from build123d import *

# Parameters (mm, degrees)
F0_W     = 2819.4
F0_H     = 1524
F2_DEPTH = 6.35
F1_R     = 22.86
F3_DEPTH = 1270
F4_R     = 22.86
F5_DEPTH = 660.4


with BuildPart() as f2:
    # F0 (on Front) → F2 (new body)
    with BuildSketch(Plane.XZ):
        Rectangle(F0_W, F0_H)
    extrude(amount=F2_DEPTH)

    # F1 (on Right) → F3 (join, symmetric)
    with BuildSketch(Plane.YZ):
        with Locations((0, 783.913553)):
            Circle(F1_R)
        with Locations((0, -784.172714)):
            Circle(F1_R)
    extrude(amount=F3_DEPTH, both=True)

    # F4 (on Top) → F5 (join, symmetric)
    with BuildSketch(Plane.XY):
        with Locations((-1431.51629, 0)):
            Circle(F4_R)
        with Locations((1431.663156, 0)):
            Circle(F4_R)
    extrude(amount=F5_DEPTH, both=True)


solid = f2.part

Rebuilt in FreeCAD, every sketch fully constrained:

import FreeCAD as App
import Part
import Sketcher
from FreeCAD import Vector
Q = App.Units.Quantity


def add_polygon(sketch, points):
    """Adds a closed chain of lines whose ends are joined by coincident constraints."""
    first, n = sketch.GeometryCount, len(points)
    for a, b in zip(points, points[1:] + points[:1]):
        sketch.addGeometry(Part.LineSegment(App.Vector(*a, 0), App.Vector(*b, 0)), False)
    for i in range(n):
        sketch.addConstraint(Sketcher.Constraint("Coincident", first + i, 2, first + (i + 1) % n, 1))

doc = App.newDocument("Part")
body = doc.addObject("PartDesign::Body", "Body")

# Sketch on XZ plane
sketch1 = body.newObject("Sketcher::SketchObject", "Sketch")
sketch1.AttachmentSupport = (doc.getObject("XZ_Plane"), [""])
sketch1.MapMode = "FlatFace"
add_polygon(sketch1, [(-1409.7, 762), (-1409.7, -762), (1409.7, -762), (1409.7, 762)])  # lines 0-3
sketch1.addConstraint([
    Sketcher.Constraint("Vertical", 0),
    Sketcher.Constraint("Horizontal", 1),
    Sketcher.Constraint("Vertical", 2),
    Sketcher.Constraint("Horizontal", 3),
    Sketcher.Constraint("Symmetric", 0, 2, 2, 2, -1, 1),
    Sketcher.Constraint("DistanceX", 1, 1, 1, 2, Q("111 in")),
    Sketcher.Constraint("DistanceY", 0, 2, 0, 1, Q("60 in")),
])
pad1 = body.newObject("PartDesign::Pad", "Pad")
pad1.Profile = sketch1
pad1.Length = Q("0.25 in")

# Sketch on YZ plane
sketch2 = body.newObject("Sketcher::SketchObject", "Sketch001")
sketch2.AttachmentSupport = (doc.getObject("YZ_Plane"), [""])
sketch2.MapMode = "FlatFace"
sketch2.addGeometry([
    Part.Circle(Vector(0, 783.913553, 0), Vector(0, 0, 1), 22.86),
    Part.Circle(Vector(0, -784.172714, 0), Vector(0, 0, 1), 22.86),
], False)
sketch2.addConstraint([
    Sketcher.Constraint("Equal", 0, 1),
    Sketcher.Constraint("PointOnObject", 0, 3, -2),
    Sketcher.Constraint("PointOnObject", 1, 3, -2),
    Sketcher.Constraint("Diameter", 0, Q("1.8 in")),
    Sketcher.Constraint("DistanceY", -1, 1, 0, 3, Q("783.913553 mm")),
    Sketcher.Constraint("DistanceY", 1, 3, -1, 1, Q("784.172714 mm")),
])
pad2 = body.newObject("PartDesign::Pad", "Pad001")
pad2.Profile = sketch2
pad2.Length = Q("100 in")
pad2.Midplane = True

# Sketch on XY plane
sketch3 = body.newObject("Sketcher::SketchObject", "Sketch002")
sketch3.AttachmentSupport = (doc.getObject("XY_Plane"), [""])
sketch3.MapMode = "FlatFace"
sketch3.addGeometry([
    Part.Circle(Vector(-1431.51629, 0, 0), Vector(0, 0, 1), 22.86),
    Part.Circle(Vector(1431.663156, 0, 0), Vector(0, 0, 1), 22.86),
], False)
sketch3.addConstraint([
    Sketcher.Constraint("Equal", 0, 1),
    Sketcher.Constraint("PointOnObject", 0, 3, -1),
    Sketcher.Constraint("PointOnObject", 1, 3, -1),
    Sketcher.Constraint("Diameter", 0, Q("1.8 in")),
    Sketcher.Constraint("DistanceX", 0, 3, -1, 1, Q("1431.51629 mm")),
    Sketcher.Constraint("DistanceX", -1, 1, 1, 3, Q("1431.663156 mm")),
])
pad3 = body.newObject("PartDesign::Pad", "Pad002")
pad3.Profile = sketch3
pad3.Length = Q("52 in")
pad3.Midplane = True

doc.recompute()
